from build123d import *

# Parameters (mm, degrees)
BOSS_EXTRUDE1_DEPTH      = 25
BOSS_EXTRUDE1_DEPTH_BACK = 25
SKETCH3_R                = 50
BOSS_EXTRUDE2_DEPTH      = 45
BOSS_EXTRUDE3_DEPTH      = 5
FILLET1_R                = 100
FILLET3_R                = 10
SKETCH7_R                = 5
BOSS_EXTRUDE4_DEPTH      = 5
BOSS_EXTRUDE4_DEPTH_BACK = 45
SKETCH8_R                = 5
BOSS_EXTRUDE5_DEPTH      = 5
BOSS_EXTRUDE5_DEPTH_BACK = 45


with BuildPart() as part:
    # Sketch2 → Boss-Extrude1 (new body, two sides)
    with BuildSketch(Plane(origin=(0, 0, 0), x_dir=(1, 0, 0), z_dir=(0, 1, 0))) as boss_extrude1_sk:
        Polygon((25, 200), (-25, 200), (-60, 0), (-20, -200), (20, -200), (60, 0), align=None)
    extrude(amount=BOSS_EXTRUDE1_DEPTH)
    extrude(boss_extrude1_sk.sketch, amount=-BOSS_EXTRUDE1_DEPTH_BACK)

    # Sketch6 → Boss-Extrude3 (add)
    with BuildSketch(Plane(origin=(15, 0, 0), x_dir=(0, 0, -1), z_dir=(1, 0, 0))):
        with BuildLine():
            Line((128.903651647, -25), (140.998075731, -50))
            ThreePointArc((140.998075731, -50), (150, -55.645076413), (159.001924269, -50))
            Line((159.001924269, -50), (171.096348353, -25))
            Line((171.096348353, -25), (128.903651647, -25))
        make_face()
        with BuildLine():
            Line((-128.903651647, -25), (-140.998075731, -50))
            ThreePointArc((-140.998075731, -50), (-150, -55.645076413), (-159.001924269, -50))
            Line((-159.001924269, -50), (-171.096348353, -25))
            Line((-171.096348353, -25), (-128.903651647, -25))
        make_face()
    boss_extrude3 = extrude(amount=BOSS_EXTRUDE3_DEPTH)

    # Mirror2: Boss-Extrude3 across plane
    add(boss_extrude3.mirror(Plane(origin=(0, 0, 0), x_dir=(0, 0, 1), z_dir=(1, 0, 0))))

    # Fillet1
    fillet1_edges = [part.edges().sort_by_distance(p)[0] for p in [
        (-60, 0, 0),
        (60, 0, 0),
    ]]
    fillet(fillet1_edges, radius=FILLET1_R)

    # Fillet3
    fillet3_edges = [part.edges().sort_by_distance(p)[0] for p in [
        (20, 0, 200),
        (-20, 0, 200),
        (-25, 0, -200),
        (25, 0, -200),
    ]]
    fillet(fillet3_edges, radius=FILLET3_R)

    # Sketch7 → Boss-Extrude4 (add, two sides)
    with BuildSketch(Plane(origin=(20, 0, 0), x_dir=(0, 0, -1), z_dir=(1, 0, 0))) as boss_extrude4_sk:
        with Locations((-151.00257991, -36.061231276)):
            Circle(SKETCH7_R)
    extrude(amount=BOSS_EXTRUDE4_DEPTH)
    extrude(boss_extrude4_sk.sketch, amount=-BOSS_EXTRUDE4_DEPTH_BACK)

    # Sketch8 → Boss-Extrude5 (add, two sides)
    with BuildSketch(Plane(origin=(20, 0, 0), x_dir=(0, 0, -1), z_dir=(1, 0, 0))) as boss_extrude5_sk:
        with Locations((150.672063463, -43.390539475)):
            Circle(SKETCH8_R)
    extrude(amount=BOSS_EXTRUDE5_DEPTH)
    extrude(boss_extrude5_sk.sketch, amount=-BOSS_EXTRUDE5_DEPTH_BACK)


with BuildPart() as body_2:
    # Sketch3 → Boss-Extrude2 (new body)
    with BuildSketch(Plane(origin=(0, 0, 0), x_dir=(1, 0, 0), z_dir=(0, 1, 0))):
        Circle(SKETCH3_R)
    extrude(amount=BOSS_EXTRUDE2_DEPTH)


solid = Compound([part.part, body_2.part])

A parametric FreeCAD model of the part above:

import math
import FreeCAD as App
import Part
import Sketcher
from FreeCAD import Vector
Q = App.Units.Quantity


def edges_at(feature, points):
    """Names of the edges that pass closest to the given points."""
    edges = feature.Shape.Edges
    near = lambda p: min(range(len(edges)), key=lambda i: edges[i].distToShape(Part.Vertex(*p))[0])
    return sorted({f"Edge{near(p) + 1}" for p in points})

doc = App.newDocument("Part")
body = doc.addObject("PartDesign::Body", "Body")

# Sketch on XZ plane
sketch1 = body.newObject("Sketcher::SketchObject", "Sketch")
sketch1.AttachmentSupport = (doc.getObject("XZ_Plane"), [""])
sketch1.MapMode = "FlatFace"
sketch1.addGeometry([
    Part.LineSegment(Vector(25, -200, 0), Vector(-25, -200, 0)),  # 0
    Part.LineSegment(Vector(-25, -200, 0), Vector(-60, 0, 0)),  # 1
    Part.LineSegment(Vector(-60, 0, 0), Vector(-20, 200, 0)),  # 2
    Part.LineSegment(Vector(-20, 200, 0), Vector(20, 200, 0)),  # 3
    Part.LineSegment(Vector(20, 200, 0), Vector(60, 0, 0)),  # 4
    Part.LineSegment(Vector(60, 0, 0), Vector(25, -200, 0)),  # 5
], False)
sketch1.addConstraint([
    Sketcher.Constraint("Coincident", 0, 2, 1, 1),
    Sketcher.Constraint("Coincident", 1, 2, 2, 1),
    Sketcher.Constraint("Coincident", 2, 2, 3, 1),
    Sketcher.Constraint("Coincident", 3, 2, 4, 1),
    Sketcher.Constraint("Coincident", 4, 2, 5, 1),
    Sketcher.Constraint("Coincident", 5, 2, 0, 1),
    Sketcher.Constraint("Horizontal", 0),
    Sketcher.Constraint("Horizontal", 3),
    Sketcher.Constraint("Symmetric", 1, 2, 4, 2, -1, 1),
    Sketcher.Constraint("PointOnObject", 1, 2, -1),
    Sketcher.Constraint("Equal", 2, 4),
    Sketcher.Constraint("Equal", 1, 5),
    Sketcher.Constraint("DistanceX", 0, 2, 0, 1, Q("50 mm")),
    Sketcher.Constraint("DistanceX", 3, 1, 3, 2, Q("40 mm")),
    Sketcher.Constraint("DistanceY", 0, 2, -1, 1, Q("200 mm")),
    Sketcher.Constraint("DistanceX", 1, 2, -1, 1, Q("60 mm")),
    Sketcher.Constraint("DistanceY", -1, 1, 2, 2, Q("200 mm")),
])
pad1 = body.newObject("PartDesign::Pad", "Pad")
pad1.Profile = sketch1
pad1.Type = "TwoLengths"
pad1.Length = 25
pad1.Length2 = 25
pad1.Reversed = True

# Sketch on YZ plane
sketch2 = body.newObject("Sketcher::SketchObject", "Sketch001")
sketch2.AttachmentSupport = (doc.getObject("YZ_Plane"), [""])
sketch2.MapMode = "FlatFace"
sketch2.AttachmentOffset = App.Placement(Vector(0, 0, 15), App.Rotation())
sketch2.addGeometry([
    Part.LineSegment(Vector(-25, -129, 0), Vector(-50, -141, 0)),  # 0
    Part.ArcOfCircle(Part.Circle(Vector(-46, -150, 0), Vector(0, 0, 1), 10), math.radians(116), math.radians(244)),  # 1
    Part.LineSegment(Vector(-50, -159, 0), Vector(-25, -171, 0)),  # 2
    Part.LineSegment(Vector(-25, -171, 0), Vector(-25, -129, 0)),  # 3
    Part.LineSegment(Vector(-50, 141, 0), Vector(-25, 129, 0)),  # 4
    Part.LineSegment(Vector(-25, 129, 0), Vector(-25, 171, 0)),  # 5
    Part.LineSegment(Vector(-25, 171, 0), Vector(-50, 159, 0)),  # 6
    Part.ArcOfCircle(Part.Circle(Vector(-46, 150, 0), Vector(0, 0, 1), 10), math.radians(116), math.radians(244)),  # 7
], False)
sketch2.addConstraint([
    Sketcher.Constraint("Tangent", 0, 2, 1, 1),
    Sketcher.Constraint("Tangent", 1, 2, 2, 1),
    Sketcher.Constraint("Coincident", 2, 2, 3, 1),
    Sketcher.Constraint("Coincident", 3, 2, 0, 1),
    Sketcher.Constraint("Coincident", 4, 2, 5, 1),
    Sketcher.Constraint("Coincident", 5, 2, 6, 1),
    Sketcher.Constraint("Tangent", 6, 2, 7, 1),
    Sketcher.Constraint("Tangent", 7, 2, 4, 1),
    Sketcher.Constraint("Vertical", 3),
    Sketcher.Constraint("Vertical", 5),
    Sketcher.Constraint("Equal", 1, 7),
    Sketcher.Constraint("Symmetric", 1, 3, 7, 3, -1),
    Sketcher.Constraint("Symmetric", 3, 2, 4, 2, -1),
    Sketcher.Constraint("Parallel", 2, 4),
    Sketcher.Constraint("Parallel", 0, 6),
    Sketcher.Constraint("Radius", 1, Q("10 mm")),
    Sketcher.Constraint("DistanceY", 1, 3, -1, 1, Q("150 mm")),
    Sketcher.Constraint("DistanceX", 0, 2, -1, 1, Q("50 mm")),
    Sketcher.Constraint("DistanceX", 2, 2, -1, 1, Q("25 mm")),
    Sketcher.Constraint("Distance", 0, Q("27.77184 mm")),
])
pad2 = body.newObject("PartDesign::Pad", "Pad001")
pad2.Profile = sketch2
pad2.Length = 5
doc.recompute()

mirrored = body.newObject("PartDesign::Mirrored", "Mirrored")
mirrored.Originals = [pad2]
mirrored.MirrorPlane = (doc.getObject("YZ_Plane"), [""])
body.Tip = mirrored
doc.recompute()

fillet = body.newObject("PartDesign::Fillet", "Fillet")
fillet.Base = (mirrored, edges_at(mirrored, [(-60, 0, 0), (60, 0, 0)]))
fillet.Radius = 100
doc.recompute()

fillet2 = body.newObject("PartDesign::Fillet", "Fillet001")
fillet2.Base = (fillet, edges_at(fillet, [
    (20, 0, 200),
    (-20, 0, 200),
    (-25, 0, -200),
    (25, 0, -200),
]))
fillet2.Radius = 10

# Sketch on YZ plane
sketch3 = body.newObject("Sketcher::SketchObject", "Sketch002")
sketch3.AttachmentSupport = (doc.getObject("YZ_Plane"), [""])
sketch3.MapMode = "FlatFace"
sketch3.AttachmentOffset = App.Placement(Vector(0, 0, 20), App.Rotation())
sketch3.addGeometry(Part.Circle(Vector(-36, 151, 0), Vector(0, 0, 1), 5), False)
sketch3.addConstraint([
    Sketcher.Constraint("Diameter", 0, Q("10 mm")),
    Sketcher.Constraint("DistanceX", 0, 3, -1, 1, Q("36.061231 mm")),
    Sketcher.Constraint("DistanceY", -1, 1, 0, 3, Q("151.00258 mm")),
])
pad3 = body.newObject("PartDesign::Pad", "Pad002")
pad3.Profile = sketch3
pad3.Type = "TwoLengths"
pad3.Length = 5
pad3.Length2 = 45

# Sketch on YZ plane
sketch4 = body.newObject("Sketcher::SketchObject", "Sketch003")
sketch4.AttachmentSupport = (doc.getObject("YZ_Plane"), [""])
sketch4.MapMode = "FlatFace"
sketch4.AttachmentOffset = App.Placement(Vector(0, 0, 20), App.Rotation())
sketch4.addGeometry(Part.Circle(Vector(-43, -151, 0), Vector(0, 0, 1), 5), False)
sketch4.addConstraint([
    Sketcher.Constraint("Diameter", 0, Q("10 mm")),
    Sketcher.Constraint("DistanceX", 0, 3, -1, 1, Q("43.390539 mm")),
    Sketcher.Constraint("DistanceY", 0, 3, -1, 1, Q("150.672063 mm")),
])
pad4 = body.newObject("PartDesign::Pad", "Pad003")
pad4.Profile = sketch4
pad4.Type = "TwoLengths"
pad4.Length = 5
pad4.Length2 = 45
body2 = doc.addObject("PartDesign::Body", "Body001")

# Sketch on XZ plane
sketch5 = body2.newObject("Sketcher::SketchObject", "Sketch004")
sketch5.AttachmentSupport = (doc.getObject("XZ_Plane001"), [""])
sketch5.MapMode = "FlatFace"
sketch5.addGeometry(Part.Circle(Vector(0, 0, 0), Vector(0, 0, 1), 50), False)
sketch5.addConstraint([
    Sketcher.Constraint("Coincident", 0, 3, -1, 1),
    Sketcher.Constraint("Diameter", 0, Q("100 mm")),
])
pad5 = body2.newObject("PartDesign::Pad", "Pad004")
pad5.Profile = sketch5
pad5.Length = 45
pad5.Reversed = True

doc.recompute()
